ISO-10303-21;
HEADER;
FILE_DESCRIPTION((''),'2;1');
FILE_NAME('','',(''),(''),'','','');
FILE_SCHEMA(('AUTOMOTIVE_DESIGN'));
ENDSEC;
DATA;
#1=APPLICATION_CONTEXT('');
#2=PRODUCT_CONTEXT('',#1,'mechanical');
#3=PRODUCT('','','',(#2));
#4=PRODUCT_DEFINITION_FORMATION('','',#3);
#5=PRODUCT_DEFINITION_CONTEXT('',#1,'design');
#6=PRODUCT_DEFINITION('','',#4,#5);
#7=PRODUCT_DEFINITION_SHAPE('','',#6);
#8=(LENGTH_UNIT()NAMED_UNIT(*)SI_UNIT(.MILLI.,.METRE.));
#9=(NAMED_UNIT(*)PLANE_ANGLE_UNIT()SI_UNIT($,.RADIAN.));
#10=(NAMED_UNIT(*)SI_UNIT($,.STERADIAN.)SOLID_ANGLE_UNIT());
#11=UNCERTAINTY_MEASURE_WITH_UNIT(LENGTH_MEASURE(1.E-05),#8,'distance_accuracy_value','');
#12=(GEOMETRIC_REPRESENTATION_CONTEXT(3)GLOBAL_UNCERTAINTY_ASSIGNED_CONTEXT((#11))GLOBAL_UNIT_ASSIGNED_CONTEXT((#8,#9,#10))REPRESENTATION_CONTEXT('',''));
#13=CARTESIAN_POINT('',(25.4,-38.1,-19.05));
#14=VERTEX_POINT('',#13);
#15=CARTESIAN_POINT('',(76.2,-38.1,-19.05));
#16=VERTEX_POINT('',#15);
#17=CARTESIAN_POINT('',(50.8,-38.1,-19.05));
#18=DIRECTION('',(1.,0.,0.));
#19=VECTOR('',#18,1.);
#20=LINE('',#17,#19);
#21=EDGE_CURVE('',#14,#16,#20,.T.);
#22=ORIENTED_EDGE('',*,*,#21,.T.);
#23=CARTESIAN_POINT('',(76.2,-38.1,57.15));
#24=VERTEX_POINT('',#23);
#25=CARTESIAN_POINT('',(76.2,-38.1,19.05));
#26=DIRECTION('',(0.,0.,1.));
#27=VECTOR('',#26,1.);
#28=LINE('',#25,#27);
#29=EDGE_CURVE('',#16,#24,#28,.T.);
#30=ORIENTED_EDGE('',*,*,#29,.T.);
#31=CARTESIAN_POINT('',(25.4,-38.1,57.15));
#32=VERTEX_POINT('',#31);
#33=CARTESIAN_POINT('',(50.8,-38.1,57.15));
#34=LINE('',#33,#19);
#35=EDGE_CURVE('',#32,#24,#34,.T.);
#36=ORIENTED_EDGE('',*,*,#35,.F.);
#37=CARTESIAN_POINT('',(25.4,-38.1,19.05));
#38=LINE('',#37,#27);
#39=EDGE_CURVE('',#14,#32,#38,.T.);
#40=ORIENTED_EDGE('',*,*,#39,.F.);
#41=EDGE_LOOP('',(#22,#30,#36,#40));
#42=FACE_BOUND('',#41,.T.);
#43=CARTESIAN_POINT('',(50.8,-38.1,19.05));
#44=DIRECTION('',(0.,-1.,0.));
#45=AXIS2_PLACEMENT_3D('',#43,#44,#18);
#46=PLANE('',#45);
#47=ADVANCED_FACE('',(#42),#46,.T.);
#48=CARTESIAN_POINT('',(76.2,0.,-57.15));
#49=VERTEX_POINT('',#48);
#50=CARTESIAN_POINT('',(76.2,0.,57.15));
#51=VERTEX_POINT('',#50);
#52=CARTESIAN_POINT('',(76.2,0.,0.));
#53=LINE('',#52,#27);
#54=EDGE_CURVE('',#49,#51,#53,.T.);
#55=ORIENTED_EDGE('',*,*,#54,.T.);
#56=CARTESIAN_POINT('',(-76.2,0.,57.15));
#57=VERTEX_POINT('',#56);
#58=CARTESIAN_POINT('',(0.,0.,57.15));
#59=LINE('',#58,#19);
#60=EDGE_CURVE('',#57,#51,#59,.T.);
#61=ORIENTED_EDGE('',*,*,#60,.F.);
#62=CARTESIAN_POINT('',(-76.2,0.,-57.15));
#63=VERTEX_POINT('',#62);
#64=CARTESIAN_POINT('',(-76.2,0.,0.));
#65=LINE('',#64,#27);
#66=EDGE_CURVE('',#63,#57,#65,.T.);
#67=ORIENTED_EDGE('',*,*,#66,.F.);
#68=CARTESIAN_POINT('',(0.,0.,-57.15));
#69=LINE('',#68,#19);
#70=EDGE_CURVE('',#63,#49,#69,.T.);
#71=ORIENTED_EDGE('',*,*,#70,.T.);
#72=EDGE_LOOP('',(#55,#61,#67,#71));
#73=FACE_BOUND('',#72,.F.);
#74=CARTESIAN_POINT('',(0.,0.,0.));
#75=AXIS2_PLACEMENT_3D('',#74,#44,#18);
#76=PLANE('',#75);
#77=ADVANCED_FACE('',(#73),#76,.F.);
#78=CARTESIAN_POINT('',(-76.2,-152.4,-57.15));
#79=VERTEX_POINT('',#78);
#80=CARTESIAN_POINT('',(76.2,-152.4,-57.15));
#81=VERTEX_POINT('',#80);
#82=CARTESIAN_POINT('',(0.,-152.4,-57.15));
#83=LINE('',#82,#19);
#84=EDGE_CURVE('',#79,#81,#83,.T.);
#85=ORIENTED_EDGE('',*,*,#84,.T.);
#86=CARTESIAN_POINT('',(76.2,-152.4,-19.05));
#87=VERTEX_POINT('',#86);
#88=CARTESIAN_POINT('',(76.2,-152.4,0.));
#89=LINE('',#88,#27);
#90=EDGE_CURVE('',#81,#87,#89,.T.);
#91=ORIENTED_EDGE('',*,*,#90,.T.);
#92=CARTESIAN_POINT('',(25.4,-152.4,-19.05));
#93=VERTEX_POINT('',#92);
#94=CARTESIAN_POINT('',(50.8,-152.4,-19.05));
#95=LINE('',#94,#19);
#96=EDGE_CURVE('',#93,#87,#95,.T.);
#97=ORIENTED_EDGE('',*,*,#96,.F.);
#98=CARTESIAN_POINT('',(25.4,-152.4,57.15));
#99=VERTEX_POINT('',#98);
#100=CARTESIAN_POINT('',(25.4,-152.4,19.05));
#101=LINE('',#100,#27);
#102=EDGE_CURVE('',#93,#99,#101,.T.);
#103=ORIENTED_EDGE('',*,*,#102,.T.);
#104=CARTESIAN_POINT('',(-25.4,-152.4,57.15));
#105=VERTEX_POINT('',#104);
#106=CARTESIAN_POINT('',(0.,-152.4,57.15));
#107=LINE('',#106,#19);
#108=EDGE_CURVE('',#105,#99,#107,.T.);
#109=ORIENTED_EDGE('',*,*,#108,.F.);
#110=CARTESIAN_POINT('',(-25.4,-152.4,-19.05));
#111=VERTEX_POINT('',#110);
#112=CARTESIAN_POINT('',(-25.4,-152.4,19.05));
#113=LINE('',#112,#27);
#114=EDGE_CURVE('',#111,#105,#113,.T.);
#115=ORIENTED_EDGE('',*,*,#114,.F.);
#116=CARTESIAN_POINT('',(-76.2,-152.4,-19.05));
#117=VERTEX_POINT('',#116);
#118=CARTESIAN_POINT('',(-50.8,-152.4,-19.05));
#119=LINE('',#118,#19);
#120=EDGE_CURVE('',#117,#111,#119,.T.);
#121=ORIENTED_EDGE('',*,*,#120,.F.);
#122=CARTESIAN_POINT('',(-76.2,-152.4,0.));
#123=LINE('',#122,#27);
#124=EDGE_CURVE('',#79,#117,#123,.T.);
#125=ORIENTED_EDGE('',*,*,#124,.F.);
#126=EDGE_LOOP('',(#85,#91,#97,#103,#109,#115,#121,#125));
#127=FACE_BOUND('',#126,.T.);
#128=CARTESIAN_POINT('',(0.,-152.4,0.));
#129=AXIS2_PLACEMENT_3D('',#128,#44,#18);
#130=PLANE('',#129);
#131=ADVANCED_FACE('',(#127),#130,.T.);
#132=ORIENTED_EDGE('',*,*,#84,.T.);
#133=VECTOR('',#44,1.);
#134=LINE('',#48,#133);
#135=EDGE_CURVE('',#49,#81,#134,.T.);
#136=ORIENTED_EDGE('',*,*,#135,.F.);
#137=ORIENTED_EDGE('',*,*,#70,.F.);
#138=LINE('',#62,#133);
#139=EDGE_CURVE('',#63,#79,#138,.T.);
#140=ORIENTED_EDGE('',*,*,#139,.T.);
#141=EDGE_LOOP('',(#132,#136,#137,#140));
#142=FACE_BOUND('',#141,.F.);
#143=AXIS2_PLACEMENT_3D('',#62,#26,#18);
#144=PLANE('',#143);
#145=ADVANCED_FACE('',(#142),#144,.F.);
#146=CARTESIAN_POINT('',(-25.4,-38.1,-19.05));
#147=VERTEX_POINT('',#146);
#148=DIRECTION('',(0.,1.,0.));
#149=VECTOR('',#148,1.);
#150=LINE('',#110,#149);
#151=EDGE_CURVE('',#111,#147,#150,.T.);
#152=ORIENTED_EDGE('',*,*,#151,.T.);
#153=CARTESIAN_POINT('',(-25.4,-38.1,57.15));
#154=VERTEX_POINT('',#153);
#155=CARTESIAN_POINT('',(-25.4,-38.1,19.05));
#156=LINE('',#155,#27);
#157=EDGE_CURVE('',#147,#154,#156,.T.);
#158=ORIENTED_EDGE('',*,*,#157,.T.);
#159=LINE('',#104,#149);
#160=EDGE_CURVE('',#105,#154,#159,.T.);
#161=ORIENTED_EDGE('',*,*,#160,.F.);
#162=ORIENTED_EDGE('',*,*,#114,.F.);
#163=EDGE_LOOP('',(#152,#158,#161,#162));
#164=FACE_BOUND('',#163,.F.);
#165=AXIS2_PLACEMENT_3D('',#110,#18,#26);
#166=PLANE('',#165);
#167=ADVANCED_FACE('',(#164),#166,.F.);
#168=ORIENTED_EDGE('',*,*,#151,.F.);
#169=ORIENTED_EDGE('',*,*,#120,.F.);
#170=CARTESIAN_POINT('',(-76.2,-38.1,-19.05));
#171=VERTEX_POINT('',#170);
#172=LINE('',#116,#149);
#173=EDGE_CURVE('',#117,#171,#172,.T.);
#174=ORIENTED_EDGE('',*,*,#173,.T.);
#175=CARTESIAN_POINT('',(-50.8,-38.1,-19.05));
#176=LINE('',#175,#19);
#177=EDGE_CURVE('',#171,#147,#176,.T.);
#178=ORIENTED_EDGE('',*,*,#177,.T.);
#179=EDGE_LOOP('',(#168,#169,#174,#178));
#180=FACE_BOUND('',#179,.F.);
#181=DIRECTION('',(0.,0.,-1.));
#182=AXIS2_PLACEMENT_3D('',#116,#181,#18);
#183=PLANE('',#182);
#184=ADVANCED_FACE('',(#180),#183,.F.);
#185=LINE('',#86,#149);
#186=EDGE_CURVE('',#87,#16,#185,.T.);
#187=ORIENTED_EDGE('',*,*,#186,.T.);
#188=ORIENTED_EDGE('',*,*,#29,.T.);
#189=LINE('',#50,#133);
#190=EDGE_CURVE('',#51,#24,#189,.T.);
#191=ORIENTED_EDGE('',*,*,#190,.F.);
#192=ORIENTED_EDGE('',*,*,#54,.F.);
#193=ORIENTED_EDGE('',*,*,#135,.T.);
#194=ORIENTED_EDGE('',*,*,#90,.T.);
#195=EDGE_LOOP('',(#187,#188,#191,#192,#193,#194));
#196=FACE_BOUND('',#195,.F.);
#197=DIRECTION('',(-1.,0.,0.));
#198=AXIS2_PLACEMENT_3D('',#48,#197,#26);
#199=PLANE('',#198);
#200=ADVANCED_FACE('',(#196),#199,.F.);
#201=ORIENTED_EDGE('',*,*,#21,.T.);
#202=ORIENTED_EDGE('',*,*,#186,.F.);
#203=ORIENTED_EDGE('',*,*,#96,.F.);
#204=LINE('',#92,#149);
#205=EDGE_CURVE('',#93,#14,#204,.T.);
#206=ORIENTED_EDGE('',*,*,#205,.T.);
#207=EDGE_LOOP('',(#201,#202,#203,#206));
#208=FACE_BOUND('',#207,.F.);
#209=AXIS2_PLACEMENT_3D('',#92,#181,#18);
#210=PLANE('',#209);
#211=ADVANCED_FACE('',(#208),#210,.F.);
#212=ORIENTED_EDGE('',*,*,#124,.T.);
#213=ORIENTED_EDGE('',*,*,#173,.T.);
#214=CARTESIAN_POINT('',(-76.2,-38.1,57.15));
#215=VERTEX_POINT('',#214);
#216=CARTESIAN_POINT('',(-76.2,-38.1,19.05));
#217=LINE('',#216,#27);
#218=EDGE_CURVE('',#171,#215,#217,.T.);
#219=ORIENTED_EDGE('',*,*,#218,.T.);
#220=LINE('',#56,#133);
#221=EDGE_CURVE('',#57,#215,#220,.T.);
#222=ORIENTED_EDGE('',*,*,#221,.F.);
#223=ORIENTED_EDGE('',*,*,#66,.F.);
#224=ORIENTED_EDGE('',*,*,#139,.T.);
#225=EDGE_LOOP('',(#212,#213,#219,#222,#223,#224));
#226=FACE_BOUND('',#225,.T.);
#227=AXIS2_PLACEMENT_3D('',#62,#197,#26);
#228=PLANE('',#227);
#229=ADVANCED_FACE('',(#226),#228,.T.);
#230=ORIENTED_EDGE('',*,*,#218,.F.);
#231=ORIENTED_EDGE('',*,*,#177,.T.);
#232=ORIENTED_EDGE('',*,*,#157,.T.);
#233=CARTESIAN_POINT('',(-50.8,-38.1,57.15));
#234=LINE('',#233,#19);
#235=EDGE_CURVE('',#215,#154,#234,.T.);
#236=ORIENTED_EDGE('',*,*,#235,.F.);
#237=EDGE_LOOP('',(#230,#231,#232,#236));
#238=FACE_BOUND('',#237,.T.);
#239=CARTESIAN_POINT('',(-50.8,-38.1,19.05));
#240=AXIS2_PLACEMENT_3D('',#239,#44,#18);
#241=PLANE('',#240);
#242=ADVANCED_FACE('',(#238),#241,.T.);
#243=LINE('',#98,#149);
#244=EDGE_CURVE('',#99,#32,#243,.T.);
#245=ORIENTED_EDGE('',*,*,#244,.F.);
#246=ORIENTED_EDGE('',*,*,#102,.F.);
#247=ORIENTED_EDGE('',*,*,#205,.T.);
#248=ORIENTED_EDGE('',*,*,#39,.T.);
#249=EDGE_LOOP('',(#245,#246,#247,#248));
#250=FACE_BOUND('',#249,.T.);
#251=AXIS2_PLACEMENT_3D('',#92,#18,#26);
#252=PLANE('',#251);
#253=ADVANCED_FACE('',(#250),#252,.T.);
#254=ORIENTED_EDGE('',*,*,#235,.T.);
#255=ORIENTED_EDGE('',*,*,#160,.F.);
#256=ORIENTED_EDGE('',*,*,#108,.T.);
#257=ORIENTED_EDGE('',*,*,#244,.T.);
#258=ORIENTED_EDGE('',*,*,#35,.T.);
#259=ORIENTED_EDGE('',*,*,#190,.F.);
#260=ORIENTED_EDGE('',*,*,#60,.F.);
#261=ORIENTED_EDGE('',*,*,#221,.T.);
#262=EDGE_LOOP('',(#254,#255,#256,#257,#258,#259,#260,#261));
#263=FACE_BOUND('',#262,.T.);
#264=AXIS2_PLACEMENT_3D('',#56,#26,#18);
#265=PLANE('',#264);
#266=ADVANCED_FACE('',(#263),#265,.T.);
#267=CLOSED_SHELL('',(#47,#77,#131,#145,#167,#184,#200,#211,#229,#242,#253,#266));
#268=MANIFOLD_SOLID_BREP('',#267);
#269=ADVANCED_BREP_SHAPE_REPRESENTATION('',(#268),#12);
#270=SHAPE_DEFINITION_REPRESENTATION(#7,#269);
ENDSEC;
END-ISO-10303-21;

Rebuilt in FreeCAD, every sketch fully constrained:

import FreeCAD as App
import Part
import Sketcher

V = App.Vector
Q = App.Units.Quantity


def add_polygon(sketch, points):
    """Adds a closed chain of lines whose ends are joined by coincident constraints."""
    first, n = sketch.GeometryCount, len(points)
    for a, b in zip(points, points[1:] + points[:1]):
        sketch.addGeometry(Part.LineSegment(App.Vector(*a, 0), App.Vector(*b, 0)), False)
    for i in range(n):
        sketch.addConstraint(Sketcher.Constraint("Coincident", first + i, 2, first + (i + 1) % n, 1))

doc = App.newDocument("Part")
body = doc.addObject("PartDesign::Body", "Body")

# Sketch on XZ plane
sketch1 = body.newObject("Sketcher::SketchObject", "Sketch")
sketch1.AttachmentSupport = (doc.getObject("XZ_Plane"), [""])
sketch1.MapMode = "FlatFace"
add_polygon(sketch1, [(-76, 57), (-76, -57), (76, -57), (76, 57)])  # lines 0-3
sketch1.addConstraint([
    Sketcher.Constraint("Vertical", 0),
    Sketcher.Constraint("Horizontal", 1),
    Sketcher.Constraint("Vertical", 2),
    Sketcher.Constraint("Horizontal", 3),
    Sketcher.Constraint("Symmetric", 0, 2, 2, 2, -1, 1),
    Sketcher.Constraint("DistanceX", 1, 1, 1, 2, Q("6 in")),
    Sketcher.Constraint("DistanceY", 0, 2, 0, 1, Q("4.5 in")),
])
pad1 = body.newObject("PartDesign::Pad", "Pad")
pad1.Profile = sketch1
pad1.Length = Q("6 in")

# Sketch on XZ plane
sketch2 = body.newObject("Sketcher::SketchObject", "Sketch001")
sketch2.AttachmentSupport = (doc.getObject("XZ_Plane"), [""])
sketch2.MapMode = "FlatFace"
sketch2.AttachmentOffset = App.Placement(V(0, 0, 6 * 25.4), App.Rotation())
add_polygon(sketch2, [(-76, 57), (-76, -19), (-25, -19), (-25, 57)])  # lines 0-3
sketch2.addConstraint([
    Sketcher.Constraint("Vertical", 0),
    Sketcher.Constraint("Horizontal", 1),
    Sketcher.Constraint("Vertical", 2),
    Sketcher.Constraint("Horizontal", 3),
    Sketcher.Constraint("DistanceX", 1, 1, 1, 2, Q("2 in")),
    Sketcher.Constraint("DistanceY", 0, 2, 0, 1, Q("3 in")),
    Sketcher.Constraint("DistanceX", 0, 2, -1, 1, Q("3 in")),
    Sketcher.Constraint("DistanceY", 0, 2, -1, 1, Q("0.75 in")),
])
pocket1 = body.newObject("PartDesign::Pocket", "Pocket")
pocket1.Profile = sketch2
pocket1.Length = Q("4.5 in")

# Sketch on XZ plane
sketch3 = body.newObject("Sketcher::SketchObject", "Sketch002")
sketch3.AttachmentSupport = (doc.getObject("XZ_Plane"), [""])
sketch3.MapMode = "FlatFace"
sketch3.AttachmentOffset = App.Placement(V(0, 0, 6 * 25.4), App.Rotation())
add_polygon(sketch3, [(25, 57), (25, -19), (76, -19), (76, 57)])  # lines 0-3
sketch3.addConstraint([
    Sketcher.Constraint("Vertical", 0),
    Sketcher.Constraint("Horizontal", 1),
    Sketcher.Constraint("Vertical", 2),
    Sketcher.Constraint("Horizontal", 3),
    Sketcher.Constraint("DistanceX", 1, 1, 1, 2, Q("2 in")),
    Sketcher.Constraint("DistanceY", 0, 2, 0, 1, Q("3 in")),
    Sketcher.Constraint("DistanceX", -1, 1, 0, 2, Q("1 in")),
    Sketcher.Constraint("DistanceY", 0, 2, -1, 1, Q("0.75 in")),
])
pocket2 = body.newObject("PartDesign::Pocket", "Pocket001")
pocket2.Profile = sketch3
pocket2.Length = Q("4.5 in")

doc.recompute()
